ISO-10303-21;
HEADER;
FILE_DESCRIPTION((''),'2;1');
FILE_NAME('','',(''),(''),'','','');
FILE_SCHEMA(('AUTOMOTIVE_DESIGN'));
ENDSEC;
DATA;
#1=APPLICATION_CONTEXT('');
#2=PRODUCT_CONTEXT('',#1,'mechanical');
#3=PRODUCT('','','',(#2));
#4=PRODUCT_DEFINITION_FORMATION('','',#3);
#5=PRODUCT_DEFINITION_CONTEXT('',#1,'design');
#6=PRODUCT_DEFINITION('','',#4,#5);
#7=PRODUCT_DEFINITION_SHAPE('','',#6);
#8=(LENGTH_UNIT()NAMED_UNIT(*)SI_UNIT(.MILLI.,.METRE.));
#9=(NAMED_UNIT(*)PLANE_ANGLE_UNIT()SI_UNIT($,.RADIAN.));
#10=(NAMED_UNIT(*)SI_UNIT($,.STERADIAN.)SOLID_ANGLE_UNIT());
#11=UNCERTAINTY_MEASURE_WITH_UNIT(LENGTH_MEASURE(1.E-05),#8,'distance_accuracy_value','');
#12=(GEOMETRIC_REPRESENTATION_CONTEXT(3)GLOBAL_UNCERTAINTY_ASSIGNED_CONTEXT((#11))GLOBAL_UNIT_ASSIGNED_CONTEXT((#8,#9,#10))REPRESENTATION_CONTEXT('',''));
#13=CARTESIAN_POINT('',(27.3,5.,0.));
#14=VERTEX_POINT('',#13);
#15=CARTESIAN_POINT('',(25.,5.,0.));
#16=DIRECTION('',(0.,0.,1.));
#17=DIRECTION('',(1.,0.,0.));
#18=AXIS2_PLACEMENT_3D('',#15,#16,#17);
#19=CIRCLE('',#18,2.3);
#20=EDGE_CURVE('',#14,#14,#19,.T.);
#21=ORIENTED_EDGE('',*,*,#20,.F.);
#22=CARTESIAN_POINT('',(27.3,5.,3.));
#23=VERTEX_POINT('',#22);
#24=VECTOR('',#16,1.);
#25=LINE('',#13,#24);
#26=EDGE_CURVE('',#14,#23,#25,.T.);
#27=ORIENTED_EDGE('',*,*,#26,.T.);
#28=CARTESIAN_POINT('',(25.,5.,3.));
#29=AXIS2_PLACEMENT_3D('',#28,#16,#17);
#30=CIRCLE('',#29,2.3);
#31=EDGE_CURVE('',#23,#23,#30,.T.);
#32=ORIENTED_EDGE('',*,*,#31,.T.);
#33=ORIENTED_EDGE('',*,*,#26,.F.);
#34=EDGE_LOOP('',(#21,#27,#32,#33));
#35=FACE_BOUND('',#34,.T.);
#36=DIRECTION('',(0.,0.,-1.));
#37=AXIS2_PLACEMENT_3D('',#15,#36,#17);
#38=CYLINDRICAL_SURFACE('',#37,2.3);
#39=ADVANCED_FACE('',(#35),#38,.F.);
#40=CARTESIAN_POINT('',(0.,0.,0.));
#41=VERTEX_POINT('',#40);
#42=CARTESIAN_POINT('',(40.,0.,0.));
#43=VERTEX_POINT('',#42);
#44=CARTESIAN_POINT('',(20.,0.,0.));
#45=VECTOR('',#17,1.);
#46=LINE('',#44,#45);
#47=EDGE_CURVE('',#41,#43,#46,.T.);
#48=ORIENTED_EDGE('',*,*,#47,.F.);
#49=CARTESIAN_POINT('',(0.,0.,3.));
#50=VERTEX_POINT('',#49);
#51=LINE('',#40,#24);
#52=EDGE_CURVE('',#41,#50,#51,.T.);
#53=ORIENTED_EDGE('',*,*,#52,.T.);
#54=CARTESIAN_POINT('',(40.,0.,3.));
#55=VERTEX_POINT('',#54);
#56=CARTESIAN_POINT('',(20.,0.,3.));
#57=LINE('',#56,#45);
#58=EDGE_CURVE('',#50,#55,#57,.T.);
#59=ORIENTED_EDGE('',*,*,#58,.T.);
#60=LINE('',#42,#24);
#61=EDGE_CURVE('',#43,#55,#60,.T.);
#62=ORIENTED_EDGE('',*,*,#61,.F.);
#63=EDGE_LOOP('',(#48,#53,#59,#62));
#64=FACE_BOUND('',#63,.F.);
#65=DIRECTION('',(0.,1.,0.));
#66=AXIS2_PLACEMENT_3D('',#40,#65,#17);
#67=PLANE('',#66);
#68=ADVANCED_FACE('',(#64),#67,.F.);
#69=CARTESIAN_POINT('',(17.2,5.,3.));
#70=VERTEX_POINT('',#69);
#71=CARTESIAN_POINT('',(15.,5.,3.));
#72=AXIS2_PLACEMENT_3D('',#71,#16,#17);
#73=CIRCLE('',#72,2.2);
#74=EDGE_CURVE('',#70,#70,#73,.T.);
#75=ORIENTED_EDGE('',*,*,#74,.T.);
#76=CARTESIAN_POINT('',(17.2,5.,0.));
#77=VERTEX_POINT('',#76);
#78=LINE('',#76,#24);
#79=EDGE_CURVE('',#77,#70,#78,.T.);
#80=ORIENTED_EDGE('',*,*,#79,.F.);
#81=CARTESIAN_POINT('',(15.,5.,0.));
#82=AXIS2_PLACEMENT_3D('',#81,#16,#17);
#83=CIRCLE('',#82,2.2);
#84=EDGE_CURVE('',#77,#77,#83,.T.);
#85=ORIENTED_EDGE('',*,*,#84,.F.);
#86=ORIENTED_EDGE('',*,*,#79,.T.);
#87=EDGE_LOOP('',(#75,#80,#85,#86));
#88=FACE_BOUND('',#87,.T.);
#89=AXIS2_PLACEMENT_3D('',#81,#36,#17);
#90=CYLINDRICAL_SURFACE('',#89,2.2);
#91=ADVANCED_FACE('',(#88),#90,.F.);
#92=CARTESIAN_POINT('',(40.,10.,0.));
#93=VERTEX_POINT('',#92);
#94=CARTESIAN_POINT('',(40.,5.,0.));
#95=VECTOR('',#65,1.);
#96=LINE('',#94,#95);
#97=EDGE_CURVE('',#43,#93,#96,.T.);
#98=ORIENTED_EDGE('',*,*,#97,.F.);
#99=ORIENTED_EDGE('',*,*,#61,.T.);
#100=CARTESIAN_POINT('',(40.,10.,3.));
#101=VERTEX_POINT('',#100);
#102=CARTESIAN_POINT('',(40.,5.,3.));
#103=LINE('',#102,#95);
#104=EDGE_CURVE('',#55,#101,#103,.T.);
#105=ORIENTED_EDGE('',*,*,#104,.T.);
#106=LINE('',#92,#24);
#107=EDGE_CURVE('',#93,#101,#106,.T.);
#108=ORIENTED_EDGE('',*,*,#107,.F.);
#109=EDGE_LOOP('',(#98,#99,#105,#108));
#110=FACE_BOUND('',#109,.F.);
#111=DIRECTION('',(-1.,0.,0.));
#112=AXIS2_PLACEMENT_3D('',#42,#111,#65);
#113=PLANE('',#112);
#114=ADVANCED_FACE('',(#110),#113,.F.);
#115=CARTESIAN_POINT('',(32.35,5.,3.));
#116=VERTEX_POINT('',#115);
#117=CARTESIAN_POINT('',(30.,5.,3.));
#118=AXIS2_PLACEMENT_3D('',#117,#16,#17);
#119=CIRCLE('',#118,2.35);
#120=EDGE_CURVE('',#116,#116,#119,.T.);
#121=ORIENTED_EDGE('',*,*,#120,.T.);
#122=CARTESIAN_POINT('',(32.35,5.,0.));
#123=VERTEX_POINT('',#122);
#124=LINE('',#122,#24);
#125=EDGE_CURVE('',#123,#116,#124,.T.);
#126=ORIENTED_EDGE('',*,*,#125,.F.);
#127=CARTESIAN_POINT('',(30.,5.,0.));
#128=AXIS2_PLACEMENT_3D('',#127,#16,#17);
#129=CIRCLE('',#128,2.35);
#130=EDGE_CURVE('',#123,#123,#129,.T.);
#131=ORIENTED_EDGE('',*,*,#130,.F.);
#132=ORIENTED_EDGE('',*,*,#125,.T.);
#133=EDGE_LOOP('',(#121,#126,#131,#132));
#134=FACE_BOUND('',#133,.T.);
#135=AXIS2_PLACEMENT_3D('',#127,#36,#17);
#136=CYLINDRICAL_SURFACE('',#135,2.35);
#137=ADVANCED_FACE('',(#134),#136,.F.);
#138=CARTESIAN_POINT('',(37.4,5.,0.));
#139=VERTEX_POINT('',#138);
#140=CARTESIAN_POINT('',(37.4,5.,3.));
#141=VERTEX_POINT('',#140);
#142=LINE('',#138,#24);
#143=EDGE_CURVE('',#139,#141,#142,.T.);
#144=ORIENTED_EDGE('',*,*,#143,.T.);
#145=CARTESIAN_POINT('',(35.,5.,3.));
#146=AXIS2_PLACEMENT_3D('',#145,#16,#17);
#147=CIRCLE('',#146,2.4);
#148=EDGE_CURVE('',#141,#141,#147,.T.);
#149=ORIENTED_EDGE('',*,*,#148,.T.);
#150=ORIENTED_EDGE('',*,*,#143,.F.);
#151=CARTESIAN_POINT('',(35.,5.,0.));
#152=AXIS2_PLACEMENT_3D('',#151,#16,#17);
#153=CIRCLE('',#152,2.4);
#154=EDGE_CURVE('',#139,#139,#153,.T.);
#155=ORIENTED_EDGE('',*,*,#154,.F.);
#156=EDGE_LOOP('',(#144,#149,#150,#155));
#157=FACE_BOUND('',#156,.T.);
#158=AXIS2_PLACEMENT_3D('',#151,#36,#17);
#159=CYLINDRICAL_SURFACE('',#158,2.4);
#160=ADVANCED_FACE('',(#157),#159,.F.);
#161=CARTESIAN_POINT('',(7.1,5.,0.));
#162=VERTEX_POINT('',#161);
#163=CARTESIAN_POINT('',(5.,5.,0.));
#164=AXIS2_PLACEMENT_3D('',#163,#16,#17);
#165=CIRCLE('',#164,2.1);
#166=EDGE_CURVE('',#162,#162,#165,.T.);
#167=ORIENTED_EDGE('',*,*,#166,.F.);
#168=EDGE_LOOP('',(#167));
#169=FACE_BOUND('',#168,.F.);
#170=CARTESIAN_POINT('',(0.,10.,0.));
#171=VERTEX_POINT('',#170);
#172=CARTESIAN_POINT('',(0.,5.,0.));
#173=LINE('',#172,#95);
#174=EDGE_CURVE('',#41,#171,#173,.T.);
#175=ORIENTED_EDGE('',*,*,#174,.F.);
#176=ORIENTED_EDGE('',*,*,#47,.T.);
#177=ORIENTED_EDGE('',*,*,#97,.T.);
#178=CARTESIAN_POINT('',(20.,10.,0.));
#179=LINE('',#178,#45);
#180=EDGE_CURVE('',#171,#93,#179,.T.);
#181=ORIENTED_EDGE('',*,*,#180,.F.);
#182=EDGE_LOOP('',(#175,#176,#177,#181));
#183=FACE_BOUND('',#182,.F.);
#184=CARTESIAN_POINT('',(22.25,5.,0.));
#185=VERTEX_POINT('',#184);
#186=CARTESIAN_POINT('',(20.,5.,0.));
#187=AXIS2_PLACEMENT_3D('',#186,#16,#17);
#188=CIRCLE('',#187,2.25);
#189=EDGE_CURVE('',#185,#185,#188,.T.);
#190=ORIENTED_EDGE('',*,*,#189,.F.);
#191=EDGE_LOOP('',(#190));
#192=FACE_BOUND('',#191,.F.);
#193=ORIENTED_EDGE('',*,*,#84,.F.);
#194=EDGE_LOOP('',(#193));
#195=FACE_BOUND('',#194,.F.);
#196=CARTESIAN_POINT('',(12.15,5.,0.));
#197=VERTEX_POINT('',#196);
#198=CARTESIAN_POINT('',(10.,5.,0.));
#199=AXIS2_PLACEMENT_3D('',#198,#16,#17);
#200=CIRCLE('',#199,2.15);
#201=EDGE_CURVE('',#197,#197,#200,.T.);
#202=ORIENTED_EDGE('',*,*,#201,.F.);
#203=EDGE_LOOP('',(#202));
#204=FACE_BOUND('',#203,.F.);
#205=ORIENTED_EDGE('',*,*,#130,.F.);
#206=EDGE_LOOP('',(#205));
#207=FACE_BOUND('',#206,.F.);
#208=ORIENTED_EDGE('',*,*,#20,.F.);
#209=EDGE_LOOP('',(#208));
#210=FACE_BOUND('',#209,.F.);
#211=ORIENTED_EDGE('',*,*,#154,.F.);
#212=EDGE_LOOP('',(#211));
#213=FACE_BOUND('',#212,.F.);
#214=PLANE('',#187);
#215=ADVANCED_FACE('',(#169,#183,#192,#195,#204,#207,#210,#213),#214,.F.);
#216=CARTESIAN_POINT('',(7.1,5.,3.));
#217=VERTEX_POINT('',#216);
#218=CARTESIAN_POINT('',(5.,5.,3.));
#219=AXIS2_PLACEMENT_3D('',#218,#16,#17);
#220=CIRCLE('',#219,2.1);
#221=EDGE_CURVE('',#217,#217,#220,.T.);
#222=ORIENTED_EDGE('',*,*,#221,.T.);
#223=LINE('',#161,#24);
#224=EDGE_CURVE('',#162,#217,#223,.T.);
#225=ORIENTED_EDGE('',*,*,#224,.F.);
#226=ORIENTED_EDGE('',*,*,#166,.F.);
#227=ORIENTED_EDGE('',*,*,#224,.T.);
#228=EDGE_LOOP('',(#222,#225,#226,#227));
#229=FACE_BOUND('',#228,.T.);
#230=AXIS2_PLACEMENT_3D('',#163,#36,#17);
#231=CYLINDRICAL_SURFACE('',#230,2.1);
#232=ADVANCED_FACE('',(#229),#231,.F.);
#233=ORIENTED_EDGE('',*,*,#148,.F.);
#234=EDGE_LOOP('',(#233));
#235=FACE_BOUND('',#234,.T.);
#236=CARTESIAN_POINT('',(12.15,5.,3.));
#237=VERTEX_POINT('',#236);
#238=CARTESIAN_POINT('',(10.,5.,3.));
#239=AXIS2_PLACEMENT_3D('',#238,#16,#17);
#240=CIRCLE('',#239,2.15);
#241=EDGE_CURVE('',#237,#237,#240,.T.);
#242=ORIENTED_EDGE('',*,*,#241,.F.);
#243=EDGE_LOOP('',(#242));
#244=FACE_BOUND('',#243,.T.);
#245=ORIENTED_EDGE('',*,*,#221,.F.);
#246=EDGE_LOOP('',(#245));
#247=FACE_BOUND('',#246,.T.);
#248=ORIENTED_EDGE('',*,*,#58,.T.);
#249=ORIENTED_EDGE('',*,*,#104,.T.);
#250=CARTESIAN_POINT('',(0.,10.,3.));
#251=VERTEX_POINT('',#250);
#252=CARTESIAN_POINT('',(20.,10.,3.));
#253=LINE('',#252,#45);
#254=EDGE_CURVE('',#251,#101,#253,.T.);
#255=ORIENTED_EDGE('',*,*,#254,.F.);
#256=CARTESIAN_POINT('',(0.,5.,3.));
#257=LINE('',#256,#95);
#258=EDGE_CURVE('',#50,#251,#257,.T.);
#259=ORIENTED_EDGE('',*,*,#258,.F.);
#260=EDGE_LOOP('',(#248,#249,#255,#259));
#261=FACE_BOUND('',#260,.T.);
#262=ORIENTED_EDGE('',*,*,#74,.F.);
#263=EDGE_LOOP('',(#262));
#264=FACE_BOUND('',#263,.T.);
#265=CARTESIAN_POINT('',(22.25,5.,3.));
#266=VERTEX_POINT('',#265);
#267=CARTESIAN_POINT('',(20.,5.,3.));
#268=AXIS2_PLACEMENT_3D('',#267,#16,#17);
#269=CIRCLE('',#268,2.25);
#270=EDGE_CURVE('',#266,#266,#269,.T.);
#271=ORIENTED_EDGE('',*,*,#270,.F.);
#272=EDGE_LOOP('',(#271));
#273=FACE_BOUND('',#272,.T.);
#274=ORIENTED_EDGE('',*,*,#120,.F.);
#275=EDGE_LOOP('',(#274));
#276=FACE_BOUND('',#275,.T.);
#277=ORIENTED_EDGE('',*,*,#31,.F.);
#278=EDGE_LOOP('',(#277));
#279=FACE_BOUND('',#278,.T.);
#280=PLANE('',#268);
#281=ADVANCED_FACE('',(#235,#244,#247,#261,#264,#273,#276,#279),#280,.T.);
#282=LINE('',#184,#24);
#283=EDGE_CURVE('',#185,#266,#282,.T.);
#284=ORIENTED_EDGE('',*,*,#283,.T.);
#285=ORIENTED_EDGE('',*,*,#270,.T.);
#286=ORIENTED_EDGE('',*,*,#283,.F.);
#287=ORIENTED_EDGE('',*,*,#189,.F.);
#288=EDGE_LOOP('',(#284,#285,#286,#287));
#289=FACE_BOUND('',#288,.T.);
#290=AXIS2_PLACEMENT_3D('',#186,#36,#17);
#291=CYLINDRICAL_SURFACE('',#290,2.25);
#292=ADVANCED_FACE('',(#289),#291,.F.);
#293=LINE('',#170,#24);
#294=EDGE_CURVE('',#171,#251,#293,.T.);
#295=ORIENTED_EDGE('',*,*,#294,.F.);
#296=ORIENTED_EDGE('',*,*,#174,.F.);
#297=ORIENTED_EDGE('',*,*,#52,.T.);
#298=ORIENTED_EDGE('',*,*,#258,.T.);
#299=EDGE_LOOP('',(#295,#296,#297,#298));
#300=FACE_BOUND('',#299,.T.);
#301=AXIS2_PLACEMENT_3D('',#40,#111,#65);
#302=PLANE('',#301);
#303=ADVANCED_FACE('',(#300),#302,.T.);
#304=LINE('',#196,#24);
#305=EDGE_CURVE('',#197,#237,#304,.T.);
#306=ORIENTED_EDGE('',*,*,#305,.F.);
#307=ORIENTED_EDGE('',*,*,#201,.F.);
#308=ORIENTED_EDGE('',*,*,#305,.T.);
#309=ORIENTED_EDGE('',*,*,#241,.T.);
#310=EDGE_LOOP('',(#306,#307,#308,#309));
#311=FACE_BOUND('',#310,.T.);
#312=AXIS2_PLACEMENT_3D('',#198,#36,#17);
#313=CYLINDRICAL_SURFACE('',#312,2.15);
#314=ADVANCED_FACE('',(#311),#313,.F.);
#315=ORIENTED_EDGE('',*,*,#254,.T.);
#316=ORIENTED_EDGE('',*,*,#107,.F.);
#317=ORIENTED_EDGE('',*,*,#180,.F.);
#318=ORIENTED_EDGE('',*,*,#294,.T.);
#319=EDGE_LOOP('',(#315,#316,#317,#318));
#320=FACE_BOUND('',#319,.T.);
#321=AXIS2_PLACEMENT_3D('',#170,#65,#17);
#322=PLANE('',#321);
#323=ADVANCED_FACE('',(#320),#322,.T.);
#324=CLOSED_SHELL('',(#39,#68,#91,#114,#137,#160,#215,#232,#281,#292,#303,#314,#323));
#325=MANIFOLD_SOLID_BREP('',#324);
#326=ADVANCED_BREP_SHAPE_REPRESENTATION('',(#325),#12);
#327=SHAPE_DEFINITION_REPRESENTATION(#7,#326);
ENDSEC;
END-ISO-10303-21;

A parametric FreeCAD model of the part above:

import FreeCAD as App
import Part
import Sketcher

V = App.Vector

doc = App.newDocument("Part")
body = doc.addObject("PartDesign::Body", "Body")

sketch1 = body.newObject("Sketcher::SketchObject", "Sketch")
sketch1.AttachmentSupport = (doc.getObject("XY_Plane"), [""])
sketch1.MapMode = "FlatFace"
sketch1.addGeometry(Part.LineSegment(V(0, 10, 0), V(0, 0, 0)), False)
sketch1.addGeometry(Part.LineSegment(V(0, 0, 0), V(40, 0, 0)), False)
sketch1.addGeometry(Part.LineSegment(V(40, 0, 0), V(40, 10, 0)), False)
sketch1.addGeometry(Part.LineSegment(V(40, 10, 0), V(0, 10, 0)), False)
sketch1.addGeometry(Part.Circle(V(5, 5, 0), V(0, 0, 1), 2.1), False)
sketch1.addGeometry(Part.Circle(V(10, 5, 0), V(0, 0, 1), 2.15), False)
sketch1.addGeometry(Part.Circle(V(15, 5, 0), V(0, 0, 1), 2.2), False)
sketch1.addGeometry(Part.Circle(V(20, 5, 0), V(0, 0, 1), 2.25), False)
sketch1.addGeometry(Part.Circle(V(25, 5, 0), V(0, 0, 1), 2.3), False)
sketch1.addGeometry(Part.Circle(V(30, 5, 0), V(0, 0, 1), 2.35), False)
sketch1.addGeometry(Part.Circle(V(35, 5, 0), V(0, 0, 1), 2.4), False)
sketch1.addConstraint(Sketcher.Constraint("Coincident", 0, 2, 1, 1))
sketch1.addConstraint(Sketcher.Constraint("Coincident", 1, 2, 2, 1))
sketch1.addConstraint(Sketcher.Constraint("Coincident", 2, 2, 3, 1))
sketch1.addConstraint(Sketcher.Constraint("Coincident", 3, 2, 0, 1))
sketch1.addConstraint(Sketcher.Constraint("Vertical", 0))
sketch1.addConstraint(Sketcher.Constraint("Horizontal", 1))
sketch1.addConstraint(Sketcher.Constraint("Vertical", 2))
sketch1.addConstraint(Sketcher.Constraint("Horizontal", 3))
sketch1.addConstraint(Sketcher.Constraint("Coincident", 0, 2, -1, 1))
sketch1.addConstraint(Sketcher.Constraint("Horizontal", 4, 3, 5, 3))
sketch1.addConstraint(Sketcher.Constraint("Horizontal", 5, 3, 6, 3))
sketch1.addConstraint(Sketcher.Constraint("Horizontal", 6, 3, 7, 3))
sketch1.addConstraint(Sketcher.Constraint("Horizontal", 7, 3, 8, 3))
sketch1.addConstraint(Sketcher.Constraint("Horizontal", 8, 3, 9, 3))
sketch1.addConstraint(Sketcher.Constraint("Horizontal", 9, 3, 10, 3))
sketch1.addConstraint(Sketcher.Constraint("Diameter", 4, 4.2))
sketch1.addConstraint(Sketcher.Constraint("Diameter", 5, 4.3))
sketch1.addConstraint(Sketcher.Constraint("Diameter", 6, 4.4))
sketch1.addConstraint(Sketcher.Constraint("Diameter", 7, 4.5))
sketch1.addConstraint(Sketcher.Constraint("Diameter", 8, 4.6))
sketch1.addConstraint(Sketcher.Constraint("Diameter", 9, 4.7))
sketch1.addConstraint(Sketcher.Constraint("Diameter", 10, 4.8))
sketch1.addConstraint(Sketcher.Constraint("DistanceX", 1, 1, 1, 2, 40.0))
sketch1.addConstraint(Sketcher.Constraint("DistanceY", 0, 2, 0, 1, 10.0))
sketch1.addConstraint(Sketcher.Constraint("DistanceX", -1, 1, 4, 3, 5.0))
sketch1.addConstraint(Sketcher.Constraint("DistanceY", -1, 1, 4, 3, 5.0))
sketch1.addConstraint(Sketcher.Constraint("DistanceX", -1, 1, 5, 3, 10.0))
sketch1.addConstraint(Sketcher.Constraint("DistanceX", -1, 1, 6, 3, 15.0))
sketch1.addConstraint(Sketcher.Constraint("DistanceX", -1, 1, 7, 3, 20.0))
sketch1.addConstraint(Sketcher.Constraint("DistanceX", -1, 1, 8, 3, 25.0))
sketch1.addConstraint(Sketcher.Constraint("DistanceX", -1, 1, 9, 3, 30.0))
sketch1.addConstraint(Sketcher.Constraint("DistanceX", -1, 1, 10, 3, 35.0))
pad1 = body.newObject("PartDesign::Pad", "Pad")
pad1.Profile = sketch1
pad1.Length = 3

doc.recompute()
